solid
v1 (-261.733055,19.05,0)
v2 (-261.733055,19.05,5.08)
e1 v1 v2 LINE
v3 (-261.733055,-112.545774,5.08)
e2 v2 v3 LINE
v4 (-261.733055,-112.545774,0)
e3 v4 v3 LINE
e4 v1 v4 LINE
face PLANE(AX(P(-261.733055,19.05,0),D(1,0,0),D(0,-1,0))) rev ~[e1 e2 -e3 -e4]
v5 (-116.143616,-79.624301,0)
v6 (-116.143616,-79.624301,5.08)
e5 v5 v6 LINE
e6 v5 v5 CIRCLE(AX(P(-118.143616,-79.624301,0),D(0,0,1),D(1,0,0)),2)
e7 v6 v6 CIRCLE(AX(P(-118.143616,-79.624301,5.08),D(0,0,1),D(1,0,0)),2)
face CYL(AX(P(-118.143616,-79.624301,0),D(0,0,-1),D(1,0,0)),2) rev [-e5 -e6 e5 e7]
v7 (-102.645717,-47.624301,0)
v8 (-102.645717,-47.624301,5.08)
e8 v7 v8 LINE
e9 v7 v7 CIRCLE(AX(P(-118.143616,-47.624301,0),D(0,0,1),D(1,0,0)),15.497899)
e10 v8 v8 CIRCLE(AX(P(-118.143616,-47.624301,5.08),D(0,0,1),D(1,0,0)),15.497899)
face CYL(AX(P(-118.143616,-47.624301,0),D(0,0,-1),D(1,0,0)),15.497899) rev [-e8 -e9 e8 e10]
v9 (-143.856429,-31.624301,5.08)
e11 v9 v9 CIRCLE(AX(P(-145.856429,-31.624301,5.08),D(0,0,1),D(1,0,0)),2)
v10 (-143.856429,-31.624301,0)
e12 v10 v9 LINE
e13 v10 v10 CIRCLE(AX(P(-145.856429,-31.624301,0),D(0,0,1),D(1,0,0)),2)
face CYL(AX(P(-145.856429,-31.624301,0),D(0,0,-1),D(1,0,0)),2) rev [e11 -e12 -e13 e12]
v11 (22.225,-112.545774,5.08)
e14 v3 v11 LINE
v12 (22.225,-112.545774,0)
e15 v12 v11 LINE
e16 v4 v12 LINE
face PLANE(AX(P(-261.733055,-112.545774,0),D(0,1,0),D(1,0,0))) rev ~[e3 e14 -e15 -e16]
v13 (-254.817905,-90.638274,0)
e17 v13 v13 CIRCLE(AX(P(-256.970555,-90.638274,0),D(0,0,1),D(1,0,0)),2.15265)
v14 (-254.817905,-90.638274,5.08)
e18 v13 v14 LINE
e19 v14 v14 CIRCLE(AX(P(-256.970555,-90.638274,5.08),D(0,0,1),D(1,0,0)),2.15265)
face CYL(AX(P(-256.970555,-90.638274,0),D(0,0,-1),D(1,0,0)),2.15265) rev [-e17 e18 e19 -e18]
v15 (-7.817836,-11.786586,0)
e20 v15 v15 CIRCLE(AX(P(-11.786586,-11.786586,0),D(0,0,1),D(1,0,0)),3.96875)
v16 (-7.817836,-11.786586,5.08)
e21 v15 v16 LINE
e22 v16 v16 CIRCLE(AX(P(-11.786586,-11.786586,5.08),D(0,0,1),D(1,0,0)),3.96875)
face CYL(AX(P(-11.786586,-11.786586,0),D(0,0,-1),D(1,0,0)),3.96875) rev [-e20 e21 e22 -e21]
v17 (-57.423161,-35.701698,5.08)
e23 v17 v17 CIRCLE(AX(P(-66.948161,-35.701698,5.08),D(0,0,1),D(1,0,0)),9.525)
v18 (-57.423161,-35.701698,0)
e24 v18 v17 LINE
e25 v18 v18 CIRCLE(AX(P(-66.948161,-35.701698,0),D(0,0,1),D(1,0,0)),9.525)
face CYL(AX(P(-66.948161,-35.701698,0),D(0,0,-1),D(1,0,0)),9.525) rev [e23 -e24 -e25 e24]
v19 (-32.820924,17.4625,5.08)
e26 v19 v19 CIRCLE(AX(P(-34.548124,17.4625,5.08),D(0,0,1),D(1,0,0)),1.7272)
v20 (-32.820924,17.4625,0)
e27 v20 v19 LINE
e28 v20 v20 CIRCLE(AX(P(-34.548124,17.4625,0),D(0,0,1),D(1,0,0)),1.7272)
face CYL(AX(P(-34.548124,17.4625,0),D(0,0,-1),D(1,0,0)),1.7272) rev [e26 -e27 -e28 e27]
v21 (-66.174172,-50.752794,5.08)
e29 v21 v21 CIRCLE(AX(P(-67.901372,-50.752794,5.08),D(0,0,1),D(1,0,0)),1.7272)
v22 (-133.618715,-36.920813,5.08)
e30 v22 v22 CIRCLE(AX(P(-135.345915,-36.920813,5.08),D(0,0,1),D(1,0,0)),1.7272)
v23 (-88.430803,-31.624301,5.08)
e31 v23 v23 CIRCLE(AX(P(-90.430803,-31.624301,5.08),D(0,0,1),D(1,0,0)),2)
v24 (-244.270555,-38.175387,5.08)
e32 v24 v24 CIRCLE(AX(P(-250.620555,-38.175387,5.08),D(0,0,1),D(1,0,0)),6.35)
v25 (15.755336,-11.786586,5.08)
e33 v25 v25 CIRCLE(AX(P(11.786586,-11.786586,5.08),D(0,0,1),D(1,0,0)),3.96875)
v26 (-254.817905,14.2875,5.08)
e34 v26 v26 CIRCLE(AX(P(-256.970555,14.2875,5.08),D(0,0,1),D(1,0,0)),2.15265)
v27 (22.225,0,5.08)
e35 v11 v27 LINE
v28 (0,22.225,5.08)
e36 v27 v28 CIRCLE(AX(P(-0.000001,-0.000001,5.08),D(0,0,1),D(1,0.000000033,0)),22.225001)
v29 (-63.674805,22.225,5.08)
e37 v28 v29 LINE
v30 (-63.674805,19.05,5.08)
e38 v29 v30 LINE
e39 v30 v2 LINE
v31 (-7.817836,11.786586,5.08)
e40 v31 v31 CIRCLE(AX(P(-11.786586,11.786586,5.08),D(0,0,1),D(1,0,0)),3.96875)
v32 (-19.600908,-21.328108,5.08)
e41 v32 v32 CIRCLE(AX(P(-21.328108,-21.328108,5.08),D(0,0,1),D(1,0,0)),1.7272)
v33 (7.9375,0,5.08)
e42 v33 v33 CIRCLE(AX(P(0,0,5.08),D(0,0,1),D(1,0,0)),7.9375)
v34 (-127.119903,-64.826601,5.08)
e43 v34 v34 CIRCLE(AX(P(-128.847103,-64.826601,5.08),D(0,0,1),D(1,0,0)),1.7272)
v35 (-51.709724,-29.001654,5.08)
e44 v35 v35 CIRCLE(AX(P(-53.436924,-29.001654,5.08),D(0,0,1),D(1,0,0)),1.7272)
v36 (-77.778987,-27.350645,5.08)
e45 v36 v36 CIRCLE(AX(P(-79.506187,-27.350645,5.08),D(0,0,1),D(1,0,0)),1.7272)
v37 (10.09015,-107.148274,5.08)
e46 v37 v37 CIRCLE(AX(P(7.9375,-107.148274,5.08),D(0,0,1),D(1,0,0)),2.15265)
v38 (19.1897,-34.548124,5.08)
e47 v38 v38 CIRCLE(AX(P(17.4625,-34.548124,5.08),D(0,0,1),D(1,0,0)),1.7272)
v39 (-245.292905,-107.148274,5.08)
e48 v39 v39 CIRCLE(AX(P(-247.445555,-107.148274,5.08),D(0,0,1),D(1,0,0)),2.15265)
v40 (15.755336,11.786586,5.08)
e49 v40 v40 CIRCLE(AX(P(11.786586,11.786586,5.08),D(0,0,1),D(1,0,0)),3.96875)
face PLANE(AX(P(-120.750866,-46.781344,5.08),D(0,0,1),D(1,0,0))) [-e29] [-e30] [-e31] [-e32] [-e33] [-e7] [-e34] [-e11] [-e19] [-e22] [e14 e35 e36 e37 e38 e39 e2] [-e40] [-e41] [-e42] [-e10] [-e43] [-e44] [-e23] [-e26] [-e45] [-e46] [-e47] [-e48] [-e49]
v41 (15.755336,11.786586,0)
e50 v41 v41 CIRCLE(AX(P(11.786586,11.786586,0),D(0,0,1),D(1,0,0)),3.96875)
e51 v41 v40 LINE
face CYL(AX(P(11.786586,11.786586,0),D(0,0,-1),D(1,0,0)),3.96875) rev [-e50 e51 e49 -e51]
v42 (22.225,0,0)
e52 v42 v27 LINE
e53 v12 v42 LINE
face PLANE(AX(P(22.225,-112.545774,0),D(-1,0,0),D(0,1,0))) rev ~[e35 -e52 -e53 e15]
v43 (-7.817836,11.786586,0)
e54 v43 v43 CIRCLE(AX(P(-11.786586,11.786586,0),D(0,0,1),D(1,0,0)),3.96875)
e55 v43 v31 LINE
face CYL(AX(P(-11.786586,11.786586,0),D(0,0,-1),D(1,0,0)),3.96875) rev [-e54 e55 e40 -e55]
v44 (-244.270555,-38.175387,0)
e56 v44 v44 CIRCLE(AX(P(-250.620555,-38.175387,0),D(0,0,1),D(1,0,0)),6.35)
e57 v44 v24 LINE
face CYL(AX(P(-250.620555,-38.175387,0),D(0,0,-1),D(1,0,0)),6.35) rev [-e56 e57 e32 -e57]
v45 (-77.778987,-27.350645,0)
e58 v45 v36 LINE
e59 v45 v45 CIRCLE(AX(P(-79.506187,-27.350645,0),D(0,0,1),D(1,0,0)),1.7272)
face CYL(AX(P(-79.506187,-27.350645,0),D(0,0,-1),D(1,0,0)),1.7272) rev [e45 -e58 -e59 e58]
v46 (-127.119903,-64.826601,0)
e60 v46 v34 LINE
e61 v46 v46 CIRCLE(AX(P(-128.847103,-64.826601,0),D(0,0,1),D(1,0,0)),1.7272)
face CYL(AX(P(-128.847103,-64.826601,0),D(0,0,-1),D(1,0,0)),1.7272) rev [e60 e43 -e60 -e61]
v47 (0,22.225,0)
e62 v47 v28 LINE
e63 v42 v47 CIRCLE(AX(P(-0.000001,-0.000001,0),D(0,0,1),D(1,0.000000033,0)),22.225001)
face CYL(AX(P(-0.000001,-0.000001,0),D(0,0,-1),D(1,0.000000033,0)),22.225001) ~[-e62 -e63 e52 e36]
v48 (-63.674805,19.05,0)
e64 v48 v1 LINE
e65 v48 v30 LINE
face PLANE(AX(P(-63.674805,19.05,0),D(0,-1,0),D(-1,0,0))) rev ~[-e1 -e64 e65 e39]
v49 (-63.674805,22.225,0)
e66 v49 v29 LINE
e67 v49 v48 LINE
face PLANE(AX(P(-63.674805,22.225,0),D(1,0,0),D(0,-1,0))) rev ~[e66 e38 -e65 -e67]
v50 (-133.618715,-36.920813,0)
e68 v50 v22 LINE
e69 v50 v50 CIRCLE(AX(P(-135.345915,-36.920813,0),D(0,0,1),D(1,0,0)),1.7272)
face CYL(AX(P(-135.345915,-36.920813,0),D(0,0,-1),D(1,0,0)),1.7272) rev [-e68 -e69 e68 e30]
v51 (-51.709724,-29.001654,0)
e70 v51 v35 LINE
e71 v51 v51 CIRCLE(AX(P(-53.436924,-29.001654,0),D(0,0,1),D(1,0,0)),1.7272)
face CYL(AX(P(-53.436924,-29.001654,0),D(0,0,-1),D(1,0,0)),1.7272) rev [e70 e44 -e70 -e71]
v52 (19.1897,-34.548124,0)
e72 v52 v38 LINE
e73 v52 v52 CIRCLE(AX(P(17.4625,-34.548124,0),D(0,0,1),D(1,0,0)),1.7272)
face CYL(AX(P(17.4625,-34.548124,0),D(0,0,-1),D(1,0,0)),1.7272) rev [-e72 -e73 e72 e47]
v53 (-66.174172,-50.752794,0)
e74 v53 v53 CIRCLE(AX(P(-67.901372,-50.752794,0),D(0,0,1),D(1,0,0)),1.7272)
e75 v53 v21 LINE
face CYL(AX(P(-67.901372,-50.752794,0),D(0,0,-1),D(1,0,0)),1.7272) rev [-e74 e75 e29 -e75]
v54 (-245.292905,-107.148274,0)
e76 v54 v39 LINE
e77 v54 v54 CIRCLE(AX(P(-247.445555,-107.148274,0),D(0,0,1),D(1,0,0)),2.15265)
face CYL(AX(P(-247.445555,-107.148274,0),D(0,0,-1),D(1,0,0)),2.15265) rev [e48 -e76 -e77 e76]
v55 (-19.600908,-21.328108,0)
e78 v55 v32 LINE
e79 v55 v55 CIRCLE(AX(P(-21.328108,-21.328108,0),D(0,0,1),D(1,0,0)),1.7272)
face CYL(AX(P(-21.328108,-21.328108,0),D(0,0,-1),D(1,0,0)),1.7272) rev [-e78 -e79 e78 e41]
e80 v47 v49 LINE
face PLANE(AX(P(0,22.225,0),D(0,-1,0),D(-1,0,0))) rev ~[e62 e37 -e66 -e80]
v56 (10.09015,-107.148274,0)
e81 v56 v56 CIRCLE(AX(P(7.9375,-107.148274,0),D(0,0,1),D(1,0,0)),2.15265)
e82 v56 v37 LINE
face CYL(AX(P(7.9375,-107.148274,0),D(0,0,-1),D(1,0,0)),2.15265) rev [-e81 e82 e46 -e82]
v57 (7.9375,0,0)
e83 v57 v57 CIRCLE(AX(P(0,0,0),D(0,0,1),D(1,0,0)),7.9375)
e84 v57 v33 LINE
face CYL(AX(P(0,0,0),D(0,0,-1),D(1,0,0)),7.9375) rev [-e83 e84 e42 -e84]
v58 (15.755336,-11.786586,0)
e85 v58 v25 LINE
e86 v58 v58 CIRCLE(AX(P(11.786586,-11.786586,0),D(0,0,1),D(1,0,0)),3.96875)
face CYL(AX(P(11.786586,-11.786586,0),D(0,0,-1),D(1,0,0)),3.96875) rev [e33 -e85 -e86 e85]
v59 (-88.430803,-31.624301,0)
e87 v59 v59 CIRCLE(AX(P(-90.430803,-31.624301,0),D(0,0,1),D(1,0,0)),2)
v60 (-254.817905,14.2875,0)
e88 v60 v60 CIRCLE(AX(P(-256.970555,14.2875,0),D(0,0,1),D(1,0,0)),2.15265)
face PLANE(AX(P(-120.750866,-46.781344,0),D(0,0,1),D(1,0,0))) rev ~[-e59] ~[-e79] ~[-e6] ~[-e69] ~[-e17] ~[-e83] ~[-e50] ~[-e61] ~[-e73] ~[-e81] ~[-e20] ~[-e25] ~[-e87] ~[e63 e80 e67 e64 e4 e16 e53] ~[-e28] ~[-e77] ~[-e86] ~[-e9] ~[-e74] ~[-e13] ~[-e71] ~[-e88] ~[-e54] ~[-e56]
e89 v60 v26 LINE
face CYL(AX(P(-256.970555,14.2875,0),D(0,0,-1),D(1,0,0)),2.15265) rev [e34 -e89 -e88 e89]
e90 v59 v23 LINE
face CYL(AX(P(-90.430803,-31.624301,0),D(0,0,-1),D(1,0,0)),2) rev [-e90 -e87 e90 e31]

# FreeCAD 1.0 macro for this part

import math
import FreeCAD as App
import Part
import Sketcher

V = App.Vector
Q = App.Units.Quantity

doc = App.newDocument("Part")
body = doc.addObject("PartDesign::Body", "Body")

# Sketch on XY plane
sketch1 = body.newObject("Sketcher::SketchObject", "Sketch")
sketch1.AttachmentSupport = (doc.getObject("XY_Plane"), [""])
sketch1.MapMode = "FlatFace"
sketch1.addGeometry([
    Part.LineSegment(V(0, 22.2, 0), V(-63.7, 22.2, 0)),  # 0
    Part.LineSegment(V(-63.7, 22.2, 0), V(-63.7, 19.1, 0)),  # 1
    Part.LineSegment(V(-63.7, 19.1, 0), V(-261.7, 19.1, 0)),  # 2
    Part.LineSegment(V(-261.7, 19.1, 0), V(-261.7, -112.5, 0)),  # 3
    Part.LineSegment(V(-261.7, -112.5, 0), V(22.2, -112.5, 0)),  # 4
    Part.LineSegment(V(22.2, -112.5, 0), V(22.2, 0, 0)),  # 5
    Part.ArcOfCircle(Part.Circle(V(0, 0, 0), V(0, 0, 1), 22.2), math.radians(0), math.radians(90)),  # 6
    Part.Circle(V(-247.4, -107.1, 0), V(0, 0, 1), 2.2),  # 7
    Part.Circle(V(-257, -90.6, 0), V(0, 0, 1), 2.2),  # 8
    Part.Circle(V(-128.8, -64.8, 0), V(0, 0, 1), 1.7),  # 9
    Part.Circle(V(-118.1, -79.6, 0), V(0, 0, 1), 2),  # 10
    Part.Circle(V(7.9, -107.1, 0), V(0, 0, 1), 2.2),  # 11
    Part.Circle(V(-118.1, -47.6, 0), V(0, 0, 1), 15.5),  # 12
    Part.Circle(V(-67.9, -50.8, 0), V(0, 0, 1), 1.7),  # 13
    Part.Circle(V(-250.6, -38.2, 0), V(0, 0, 1), 6.3),  # 14
    Part.Circle(V(-145.9, -31.6, 0), V(0, 0, 1), 2),  # 15
    Part.Circle(V(-135.3, -36.9, 0), V(0, 0, 1), 1.7),  # 16
    Part.Circle(V(-257, 14.3, 0), V(0, 0, 1), 2.2),  # 17
    Part.Circle(V(-90.4, -31.6, 0), V(0, 0, 1), 2),  # 18
    Part.Circle(V(-66.9, -35.7, 0), V(0, 0, 1), 9.5),  # 19
    Part.Circle(V(-53.4, -29, 0), V(0, 0, 1), 1.7),  # 20
    Part.Circle(V(-79.5, -27.4, 0), V(0, 0, 1), 1.7),  # 21
    Part.Circle(V(17.5, -34.5, 0), V(0, 0, 1), 1.7),  # 22
    Part.Circle(V(-21.3, -21.3, 0), V(0, 0, 1), 1.7),  # 23
    Part.Circle(V(-11.8, -11.8, 0), V(0, 0, 1), 4),  # 24
    Part.Circle(V(11.8, -11.8, 0), V(0, 0, 1), 4),  # 25
    Part.Circle(V(0, 0, 0), V(0, 0, 1), 7.9),  # 26
    Part.Circle(V(-34.5, 17.5, 0), V(0, 0, 1), 1.7),  # 27
    Part.Circle(V(-11.8, 11.8, 0), V(0, 0, 1), 4),  # 28
    Part.Circle(V(11.8, 11.8, 0), V(0, 0, 1), 4),  # 29
], False)
sketch1.addConstraint([
    Sketcher.Constraint("Coincident", 0, 2, 1, 1),
    Sketcher.Constraint("Coincident", 1, 2, 2, 1),
    Sketcher.Constraint("Coincident", 2, 2, 3, 1),
    Sketcher.Constraint("Coincident", 3, 2, 4, 1),
    Sketcher.Constraint("Coincident", 4, 2, 5, 1),
    Sketcher.Constraint("Tangent", 5, 2, 6, 1),
    Sketcher.Constraint("Tangent", 6, 2, 0, 1),
    Sketcher.Constraint("Horizontal", 0),
    Sketcher.Constraint("Vertical", 1),
    Sketcher.Constraint("Horizontal", 2),
    Sketcher.Constraint("Vertical", 3),
    Sketcher.Constraint("Horizontal", 4),
    Sketcher.Constraint("Vertical", 5),
    Sketcher.Constraint("Coincident", 6, 3, -1, 1),
    Sketcher.Constraint("Coincident", 26, 3, -1, 1),
    Sketcher.Constraint("Equal", 7, 8),
    Sketcher.Constraint("Equal", 8, 11),
    Sketcher.Constraint("Equal", 9, 13),
    Sketcher.Constraint("Equal", 10, 15),
    Sketcher.Constraint("Equal", 13, 16),
    Sketcher.Constraint("Equal", 11, 17),
    Sketcher.Constraint("Equal", 15, 18),
    Sketcher.Constraint("Equal", 16, 20),
    Sketcher.Constraint("Equal", 20, 21),
    Sketcher.Constraint("Equal", 21, 22),
    Sketcher.Constraint("Equal", 22, 23),
    Sketcher.Constraint("Equal", 24, 25),
    Sketcher.Constraint("Equal", 23, 27),
    Sketcher.Constraint("Equal", 25, 28),
    Sketcher.Constraint("Equal", 28, 29),
    Sketcher.Constraint("Symmetric", 25, 3, 28, 3, -1, 1),
    Sketcher.Constraint("Symmetric", 24, 3, 29, 3, -1, 1),
    Sketcher.Constraint("Symmetric", 24, 3, 25, 3, -2),
    Sketcher.Constraint("Horizontal", 7, 3, 11, 3),
    Sketcher.Constraint("Horizontal", 15, 3, 18, 3),
    Sketcher.Constraint("Vertical", 10, 3, 12, 3),
    Sketcher.Constraint("Vertical", 8, 3, 17, 3),
    Sketcher.Constraint("Diameter", 14, Q("0.5 in")),
    Sketcher.Constraint("Diameter", 19, Q("0.75 in")),
    Sketcher.Constraint("Diameter", 9, Q("0.136 in")),
    Sketcher.Constraint("Diameter", 24, Q("0.3125 in")),
    Sketcher.Constraint("Diameter", 26, Q("0.625 in")),
    Sketcher.Constraint("Radius", 6, Q("0.875 in")),
    Sketcher.Constraint("Diameter", 7, Q("0.1695 in")),
    Sketcher.Constraint("Diameter", 10, Q("4 mm")),
    Sketcher.Constraint("Diameter", 12, Q("30.995798 mm")),
    Sketcher.Constraint("DistanceY", 1, 2, 1, 1, Q("0.125 in")),
    Sketcher.Constraint("DistanceY", 7, 3, 8, 3, Q("0.65 in")),
    Sketcher.Constraint("DistanceX", 8, 3, 14, 3, Q("0.25 in")),
    Sketcher.Constraint("DistanceX", -1, 1, 11, 3, Q("0.3125 in")),
    Sketcher.Constraint("DistanceY", -1, 1, 17, 3, Q("0.5625 in")),
    Sketcher.Constraint("DistanceX", -1, 1, 22, 3, Q("0.6875 in")),
    Sketcher.Constraint("DistanceY", -1, 1, 27, 3, Q("0.6875 in")),
    Sketcher.Constraint("DistanceX", 8, 3, 7, 3, Q("0.375 in")),
    Sketcher.Constraint("DistanceX", 2, 2, 17, 3, Q("0.1875 in")),
    Sketcher.Constraint("DistanceY", 3, 2, 7, 3, Q("0.2125 in")),
    Sketcher.Constraint("DistanceX", 2, 2, 2, 1, Q("198.05825 mm")),
    Sketcher.Constraint("DistanceY", 9, 3, -1, 1, Q("64.826601 mm")),
    Sketcher.Constraint("DistanceY", 10, 3, -1, 1, Q("79.624301 mm")),
    Sketcher.Constraint("DistanceY", 12, 3, -1, 1, Q("47.624301 mm")),
    Sketcher.Constraint("DistanceY", 15, 3, -1, 1, Q("31.624301 mm")),
    Sketcher.Constraint("DistanceX", 16, 3, 12, 3, Q("17.202299 mm")),
    Sketcher.Constraint("DistanceX", 9, 3, 18, 3, Q("38.4163 mm")),
    Sketcher.Constraint("DistanceX", 20, 3, 27, 3, Q("18.8888 mm")),
    Sketcher.Constraint("DistanceY", 19, 3, 0, 2, Q("57.926698 mm")),
    Sketcher.Constraint("DistanceX", 0, 2, 0, 1, Q("63.674805 mm")),
    Sketcher.Constraint("DistanceY", 3, 2, 3, 1, Q("131.595774 mm")),
    Sketcher.Constraint("DistanceX", 13, 3, -1, 1, Q("67.901372 mm")),
    Sketcher.Constraint("DistanceX", 15, 3, -1, 1, Q("145.856429 mm")),
    Sketcher.Constraint("DistanceX", 19, 3, -1, 1, Q("66.948161 mm")),
    Sketcher.Constraint("DistanceX", 23, 3, -1, 1, Q("21.328108 mm")),
    Sketcher.Constraint("DistanceY", 23, 3, -1, 1, Q("21.328108 mm")),
    Sketcher.Constraint("DistanceX", 8, 3, 9, 3, Q("128.123452 mm")),
    Sketcher.Constraint("DistanceX", 7, 3, 10, 3, Q("129.301939 mm")),
    Sketcher.Constraint("DistanceY", 11, 3, 13, 3, Q("56.39548 mm")),
    Sketcher.Constraint("DistanceY", 13, 3, 16, 3, Q("13.831981 mm")),
    Sketcher.Constraint("DistanceY", 13, 3, 20, 3, Q("21.75114 mm")),
    Sketcher.Constraint("DistanceX", 18, 3, 20, 3, Q("36.993879 mm")),
    Sketcher.Constraint("DistanceY", 20, 3, 21, 3, Q("1.651009 mm")),
    Sketcher.Constraint("DistanceX", 12, 3, 21, 3, Q("38.637429 mm")),
    Sketcher.Constraint("DistanceY", 22, 3, 20, 3, Q("5.54647 mm")),
    Sketcher.Constraint("DistanceY", 22, 3, 24, 3, Q("22.761538 mm")),
    Sketcher.Constraint("DistanceX", 24, 3, 25, 3, Q("23.573172 mm")),
    Sketcher.Constraint("DistanceY", 14, 3, -1, 1, Q("38.175387 mm")),
])
pad1 = body.newObject("PartDesign::Pad", "Pad")
pad1.Profile = sketch1
pad1.Length = Q("0.2 in")

doc.recompute()
